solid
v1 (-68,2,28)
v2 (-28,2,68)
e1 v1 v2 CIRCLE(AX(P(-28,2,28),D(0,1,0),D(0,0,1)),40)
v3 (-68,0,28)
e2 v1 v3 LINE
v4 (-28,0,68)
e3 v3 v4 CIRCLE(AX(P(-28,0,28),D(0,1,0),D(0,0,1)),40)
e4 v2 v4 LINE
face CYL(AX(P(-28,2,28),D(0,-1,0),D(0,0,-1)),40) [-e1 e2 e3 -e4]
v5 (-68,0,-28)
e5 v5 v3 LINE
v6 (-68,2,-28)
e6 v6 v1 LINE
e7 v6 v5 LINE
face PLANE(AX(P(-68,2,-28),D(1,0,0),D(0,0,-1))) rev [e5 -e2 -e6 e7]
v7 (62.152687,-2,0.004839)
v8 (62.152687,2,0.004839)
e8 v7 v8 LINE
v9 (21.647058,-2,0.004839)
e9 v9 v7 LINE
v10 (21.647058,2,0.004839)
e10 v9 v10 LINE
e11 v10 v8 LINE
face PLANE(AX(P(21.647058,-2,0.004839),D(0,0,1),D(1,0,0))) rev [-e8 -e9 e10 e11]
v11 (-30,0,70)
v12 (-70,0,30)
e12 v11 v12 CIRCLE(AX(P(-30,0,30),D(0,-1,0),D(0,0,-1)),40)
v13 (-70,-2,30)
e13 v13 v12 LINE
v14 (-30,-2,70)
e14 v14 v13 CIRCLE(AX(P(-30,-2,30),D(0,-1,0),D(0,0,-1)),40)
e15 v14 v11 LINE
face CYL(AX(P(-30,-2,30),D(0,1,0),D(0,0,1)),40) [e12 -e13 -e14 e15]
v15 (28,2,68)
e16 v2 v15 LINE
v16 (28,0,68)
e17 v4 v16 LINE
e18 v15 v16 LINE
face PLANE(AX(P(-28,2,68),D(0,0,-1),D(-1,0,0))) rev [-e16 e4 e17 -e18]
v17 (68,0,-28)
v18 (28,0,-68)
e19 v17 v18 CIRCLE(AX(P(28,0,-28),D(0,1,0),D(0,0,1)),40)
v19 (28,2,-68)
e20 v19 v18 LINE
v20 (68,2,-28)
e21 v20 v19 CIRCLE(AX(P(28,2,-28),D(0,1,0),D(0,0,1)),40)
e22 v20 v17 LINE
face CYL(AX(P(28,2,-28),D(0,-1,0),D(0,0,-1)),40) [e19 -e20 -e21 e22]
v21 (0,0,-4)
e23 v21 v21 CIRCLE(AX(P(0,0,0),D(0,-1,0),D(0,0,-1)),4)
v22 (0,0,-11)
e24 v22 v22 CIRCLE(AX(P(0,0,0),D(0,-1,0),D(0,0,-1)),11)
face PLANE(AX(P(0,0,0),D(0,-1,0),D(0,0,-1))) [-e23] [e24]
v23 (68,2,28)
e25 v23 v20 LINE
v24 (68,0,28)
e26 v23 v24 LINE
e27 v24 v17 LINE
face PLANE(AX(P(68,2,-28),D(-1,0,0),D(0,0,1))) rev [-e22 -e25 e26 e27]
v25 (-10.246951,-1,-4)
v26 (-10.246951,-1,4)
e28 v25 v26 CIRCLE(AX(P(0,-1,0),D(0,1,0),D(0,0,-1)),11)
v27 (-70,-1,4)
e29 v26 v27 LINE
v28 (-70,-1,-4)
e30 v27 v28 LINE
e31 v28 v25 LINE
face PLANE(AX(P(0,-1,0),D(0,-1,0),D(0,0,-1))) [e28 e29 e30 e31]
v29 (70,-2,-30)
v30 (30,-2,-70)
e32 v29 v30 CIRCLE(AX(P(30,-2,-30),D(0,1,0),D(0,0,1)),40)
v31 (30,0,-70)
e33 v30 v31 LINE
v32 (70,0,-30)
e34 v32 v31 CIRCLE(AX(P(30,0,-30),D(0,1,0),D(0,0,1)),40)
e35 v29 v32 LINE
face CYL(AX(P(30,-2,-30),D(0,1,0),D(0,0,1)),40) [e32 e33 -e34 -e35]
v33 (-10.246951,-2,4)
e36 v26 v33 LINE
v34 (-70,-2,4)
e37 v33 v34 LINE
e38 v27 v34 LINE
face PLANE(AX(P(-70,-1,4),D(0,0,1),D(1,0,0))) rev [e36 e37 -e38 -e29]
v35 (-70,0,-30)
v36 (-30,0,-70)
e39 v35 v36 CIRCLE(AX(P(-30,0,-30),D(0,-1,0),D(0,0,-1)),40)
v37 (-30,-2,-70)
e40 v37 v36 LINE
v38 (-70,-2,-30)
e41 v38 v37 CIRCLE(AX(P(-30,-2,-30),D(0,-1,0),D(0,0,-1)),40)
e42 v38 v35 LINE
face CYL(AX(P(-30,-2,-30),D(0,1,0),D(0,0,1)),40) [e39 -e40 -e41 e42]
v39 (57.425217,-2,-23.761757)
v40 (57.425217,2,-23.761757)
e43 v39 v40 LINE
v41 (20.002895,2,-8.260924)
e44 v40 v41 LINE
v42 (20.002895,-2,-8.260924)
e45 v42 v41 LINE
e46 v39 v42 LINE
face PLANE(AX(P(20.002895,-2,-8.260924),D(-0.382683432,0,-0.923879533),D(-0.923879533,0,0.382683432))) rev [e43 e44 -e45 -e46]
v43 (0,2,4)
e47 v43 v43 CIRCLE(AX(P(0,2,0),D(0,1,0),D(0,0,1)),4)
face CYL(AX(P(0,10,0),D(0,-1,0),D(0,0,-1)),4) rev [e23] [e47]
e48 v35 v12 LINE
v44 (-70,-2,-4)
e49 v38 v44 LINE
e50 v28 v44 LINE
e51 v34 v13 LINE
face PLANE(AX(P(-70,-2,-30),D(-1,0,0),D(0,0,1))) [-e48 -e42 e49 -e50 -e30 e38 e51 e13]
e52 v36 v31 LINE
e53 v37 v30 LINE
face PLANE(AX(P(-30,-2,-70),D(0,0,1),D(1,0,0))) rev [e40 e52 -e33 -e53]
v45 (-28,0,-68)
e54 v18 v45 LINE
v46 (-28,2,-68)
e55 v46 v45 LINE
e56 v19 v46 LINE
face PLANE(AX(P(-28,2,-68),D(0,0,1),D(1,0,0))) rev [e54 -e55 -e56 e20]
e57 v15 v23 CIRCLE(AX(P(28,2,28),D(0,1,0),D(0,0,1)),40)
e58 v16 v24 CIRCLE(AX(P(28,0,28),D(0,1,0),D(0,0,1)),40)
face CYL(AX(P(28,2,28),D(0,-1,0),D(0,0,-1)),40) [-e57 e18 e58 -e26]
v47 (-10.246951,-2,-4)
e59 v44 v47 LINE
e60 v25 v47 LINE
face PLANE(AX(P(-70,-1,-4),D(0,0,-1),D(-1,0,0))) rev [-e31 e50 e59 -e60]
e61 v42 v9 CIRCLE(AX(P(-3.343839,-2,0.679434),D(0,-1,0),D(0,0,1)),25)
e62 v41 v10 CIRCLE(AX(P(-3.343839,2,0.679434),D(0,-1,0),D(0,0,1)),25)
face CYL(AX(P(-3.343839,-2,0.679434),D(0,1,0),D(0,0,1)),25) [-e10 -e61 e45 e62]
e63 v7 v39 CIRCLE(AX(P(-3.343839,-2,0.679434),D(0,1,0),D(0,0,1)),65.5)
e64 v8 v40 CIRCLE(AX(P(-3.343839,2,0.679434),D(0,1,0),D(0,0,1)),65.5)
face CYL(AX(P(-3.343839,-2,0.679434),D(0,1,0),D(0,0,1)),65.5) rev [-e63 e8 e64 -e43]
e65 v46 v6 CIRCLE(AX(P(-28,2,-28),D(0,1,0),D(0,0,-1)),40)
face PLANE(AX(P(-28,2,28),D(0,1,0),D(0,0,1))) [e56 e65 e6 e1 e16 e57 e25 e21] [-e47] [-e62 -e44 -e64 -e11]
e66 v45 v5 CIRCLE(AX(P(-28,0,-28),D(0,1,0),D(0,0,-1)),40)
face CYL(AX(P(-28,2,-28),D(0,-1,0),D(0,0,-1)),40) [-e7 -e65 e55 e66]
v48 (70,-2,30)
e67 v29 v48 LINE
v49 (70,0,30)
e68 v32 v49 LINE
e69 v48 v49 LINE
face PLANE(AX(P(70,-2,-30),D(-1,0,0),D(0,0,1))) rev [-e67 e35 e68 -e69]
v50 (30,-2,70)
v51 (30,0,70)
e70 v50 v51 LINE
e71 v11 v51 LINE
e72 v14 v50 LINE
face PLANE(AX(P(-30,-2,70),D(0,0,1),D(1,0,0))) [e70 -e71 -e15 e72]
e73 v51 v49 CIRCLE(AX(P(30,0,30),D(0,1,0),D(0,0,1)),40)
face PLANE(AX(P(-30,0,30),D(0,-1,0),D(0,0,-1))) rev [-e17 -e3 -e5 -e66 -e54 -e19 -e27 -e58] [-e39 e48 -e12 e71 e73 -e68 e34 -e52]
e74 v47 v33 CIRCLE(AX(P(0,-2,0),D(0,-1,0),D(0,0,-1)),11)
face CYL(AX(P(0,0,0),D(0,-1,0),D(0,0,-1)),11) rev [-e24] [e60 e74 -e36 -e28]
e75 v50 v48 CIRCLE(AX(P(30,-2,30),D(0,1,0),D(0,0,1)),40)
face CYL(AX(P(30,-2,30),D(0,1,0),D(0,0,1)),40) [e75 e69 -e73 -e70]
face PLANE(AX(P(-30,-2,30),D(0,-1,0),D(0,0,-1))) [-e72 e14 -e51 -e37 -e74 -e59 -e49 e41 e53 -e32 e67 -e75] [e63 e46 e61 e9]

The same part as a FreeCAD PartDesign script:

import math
import FreeCAD as App
import Part
import Sketcher

V = App.Vector
Q = App.Units.Quantity

doc = App.newDocument("Part")
params = doc.addObject("Spreadsheet::Sheet", "Params")
for row, (alias, value) in enumerate([
    ("sketch1_radius", "40 mm"),
    ("sketch1_width", "60 mm"),
    ("pad1_length", "2 mm"),
    ("sketch2_radius", "40 mm"),
    ("sketch2_width", "56 mm"),
    ("pad2_length", "2 mm"),
    ("sketch3_diameter", "22 mm"),
    ("pocket1_length", "2 mm"),
    ("sketch5_diameter", "2.8 mm"),
    ("pad3_length", "4 mm"),
    ("sketch6_radius", "25 mm"),
    ("sketch6_radius2", "65.5 mm"),
    ("pocket3_length", "4 mm"),
    ("sketch7_diameter", "2.8 mm"),
    ("pocket4_length", "2 mm"),
    ("sketch8_radius", "11 mm"),
    ("sketch8_height", "8 mm"),
    ("pocket5_length", "1 mm"),
    ("sketch9_diameter", "8 mm"),
    ("pocket6_length", "10 mm"),
], start=1):
    params.set(f"A{row}", alias)
    params.set(f"B{row}", "=" + value)
    params.setAlias(f"B{row}", alias)

body = doc.addObject("PartDesign::Body", "Body")

# Sketch on XZ plane
sketch1 = body.newObject("Sketcher::SketchObject", "Sketch")
sketch1.AttachmentSupport = (doc.getObject("XZ_Plane"), [""])
sketch1.MapMode = "FlatFace"
sketch1.addGeometry([
    Part.LineSegment(V(30, -70, 0), V(-30, -70, 0)),  # 0
    Part.ArcOfCircle(Part.Circle(V(-30, -30, 0), V(0, 0, 1), 40), math.radians(-180), math.radians(-90)),  # 1
    Part.LineSegment(V(-70, -30, 0), V(-70, 30, 0)),  # 2
    Part.ArcOfCircle(Part.Circle(V(-30, 30, 0), V(0, 0, 1), 40), math.radians(90), math.radians(180)),  # 3
    Part.LineSegment(V(-30, 70, 0), V(30, 70, 0)),  # 4
    Part.ArcOfCircle(Part.Circle(V(30, 30, 0), V(0, 0, 1), 40), math.radians(0), math.radians(90)),  # 5
    Part.LineSegment(V(70, 30, 0), V(70, -30, 0)),  # 6
    Part.ArcOfCircle(Part.Circle(V(30, -30, 0), V(0, 0, 1), 40), math.radians(-90), math.radians(0)),  # 7
], False)
sketch1.addConstraint([
    Sketcher.Constraint("Tangent", 0, 2, 1, 2),
    Sketcher.Constraint("Tangent", 1, 1, 2, 1),
    Sketcher.Constraint("Tangent", 2, 2, 3, 2),
    Sketcher.Constraint("Tangent", 3, 1, 4, 1),
    Sketcher.Constraint("Tangent", 4, 2, 5, 2),
    Sketcher.Constraint("Tangent", 5, 1, 6, 1),
    Sketcher.Constraint("Tangent", 6, 2, 7, 2),
    Sketcher.Constraint("Tangent", 7, 1, 0, 1),
    Sketcher.Constraint("Horizontal", 0),
    Sketcher.Constraint("Vertical", 2),
    Sketcher.Constraint("Horizontal", 4),
    Sketcher.Constraint("Vertical", 6),
    Sketcher.Constraint("Equal", 1, 3),
    Sketcher.Constraint("Equal", 3, 5),
    Sketcher.Constraint("Equal", 5, 7),
    Sketcher.Constraint("Symmetric", 1, 3, 5, 3, -1, 1),
    Sketcher.Constraint("Equal", 4, 2),
    Sketcher.Constraint("Radius", 1, Q("40 mm")),
    Sketcher.Constraint("DistanceX", 0, 2, 0, 1, Q("60 mm")),
])
sketch1.setExpression("Constraints[17]", "Params.sketch1_radius")
sketch1.setExpression("Constraints[18]", "Params.sketch1_width")
pad1 = body.newObject("PartDesign::Pad", "Pad")
pad1.Profile = sketch1
pad1.setExpression("Length", "Params.pad1_length")

# Sketch on XZ plane
sketch2 = body.newObject("Sketcher::SketchObject", "Sketch001")
sketch2.AttachmentSupport = (doc.getObject("XZ_Plane"), [""])
sketch2.MapMode = "FlatFace"
sketch2.addGeometry([
    Part.LineSegment(V(28, -68, 0), V(-28, -68, 0)),  # 0
    Part.ArcOfCircle(Part.Circle(V(-28, -28, 0), V(0, 0, 1), 40), math.radians(-180), math.radians(-90)),  # 1
    Part.LineSegment(V(-68, -28, 0), V(-68, 28, 0)),  # 2
    Part.ArcOfCircle(Part.Circle(V(-28, 28, 0), V(0, 0, 1), 40), math.radians(90), math.radians(180)),  # 3
    Part.LineSegment(V(-28, 68, 0), V(28, 68, 0)),  # 4
    Part.ArcOfCircle(Part.Circle(V(28, 28, 0), V(0, 0, 1), 40), math.radians(0), math.radians(90)),  # 5
    Part.LineSegment(V(68, 28, 0), V(68, -28, 0)),  # 6
    Part.ArcOfCircle(Part.Circle(V(28, -28, 0), V(0, 0, 1), 40), math.radians(-90), math.radians(0)),  # 7
], False)
sketch2.addConstraint([
    Sketcher.Constraint("Tangent", 0, 2, 1, 2),
    Sketcher.Constraint("Tangent", 1, 1, 2, 1),
    Sketcher.Constraint("Tangent", 2, 2, 3, 2),
    Sketcher.Constraint("Tangent", 3, 1, 4, 1),
    Sketcher.Constraint("Tangent", 4, 2, 5, 2),
    Sketcher.Constraint("Tangent", 5, 1, 6, 1),
    Sketcher.Constraint("Tangent", 6, 2, 7, 2),
    Sketcher.Constraint("Tangent", 7, 1, 0, 1),
    Sketcher.Constraint("Horizontal", 0),
    Sketcher.Constraint("Vertical", 2),
    Sketcher.Constraint("Horizontal", 4),
    Sketcher.Constraint("Vertical", 6),
    Sketcher.Constraint("Equal", 1, 3),
    Sketcher.Constraint("Equal", 3, 5),
    Sketcher.Constraint("Equal", 5, 7),
    Sketcher.Constraint("Symmetric", 1, 3, 5, 3, -1, 1),
    Sketcher.Constraint("Equal", 4, 2),
    Sketcher.Constraint("Radius", 1, Q("40 mm")),
    Sketcher.Constraint("DistanceX", 0, 2, 0, 1, Q("56 mm")),
])
sketch2.setExpression("Constraints[17]", "Params.sketch2_radius")
sketch2.setExpression("Constraints[18]", "Params.sketch2_width")
pad2 = body.newObject("PartDesign::Pad", "Pad001")
pad2.Profile = sketch2
pad2.setExpression("Length", "Params.pad2_length")
pad2.Reversed = True

# Sketch on XZ plane
sketch3 = body.newObject("Sketcher::SketchObject", "Sketch002")
sketch3.AttachmentSupport = (doc.getObject("XZ_Plane"), [""])
sketch3.MapMode = "FlatFace"
sketch3.AttachmentOffset = App.Placement(V(0, 0, 2), App.Rotation())
sketch3.addGeometry(Part.Circle(V(0, 0, 0), V(0, 0, 1), 11), False)
sketch3.addConstraint([
    Sketcher.Constraint("Coincident", 0, 3, -1, 1),
    Sketcher.Constraint("Diameter", 0, Q("22 mm")),
])
sketch3.setExpression("Constraints[1]", "Params.sketch3_diameter")
pocket1 = body.newObject("PartDesign::Pocket", "Pocket")
pocket1.Profile = sketch3
pocket1.setExpression("Length", "Params.pocket1_length")

# Sketch on XZ plane
sketch4 = body.newObject("Sketcher::SketchObject", "Sketch003")
sketch4.AttachmentSupport = (doc.getObject("XZ_Plane"), [""])
sketch4.MapMode = "FlatFace"
sketch4.addGeometry(Part.Circle(V(0, 0, 0), V(0, 0, 1), 2.6), False)
sketch4.addConstraint([
    Sketcher.Constraint("Coincident", 0, 3, -1, 1),
    Sketcher.Constraint("Diameter", 0, Q("5.207429 mm")),
])
pocket2 = body.newObject("PartDesign::Pocket", "Pocket001")
pocket2.Profile = sketch4
pocket2.Type = "ThroughAll"
pocket2.Midplane = True

# Sketch on XZ plane
sketch5 = body.newObject("Sketcher::SketchObject", "Sketch004")
sketch5.AttachmentSupport = (doc.getObject("XZ_Plane"), [""])
sketch5.MapMode = "FlatFace"
sketch5.addGeometry([
    Part.Circle(V(13, -13, 0), V(0, 0, 1), 1.4),
    Part.Circle(V(13, 13, 0), V(0, 0, 1), 1.4),
    Part.Circle(V(-13, 13, 0), V(0, 0, 1), 1.4),
    Part.Circle(V(-13, -13, 0), V(0, 0, 1), 1.4),
], False)
sketch5.addConstraint([
    Sketcher.Constraint("Equal", 0, 1),
    Sketcher.Constraint("Equal", 1, 2),
    Sketcher.Constraint("Equal", 2, 3),
    Sketcher.Constraint("Symmetric", 0, 3, 2, 3, -1, 1),
    Sketcher.Constraint("Symmetric", 1, 3, 3, 3, -1, 1),
    Sketcher.Constraint("Symmetric", 1, 3, 2, 3, -2),
    Sketcher.Constraint("Diameter", 0, Q("2.8 mm")),
    Sketcher.Constraint("DistanceX", -1, 1, 0, 3, Q("13 mm")),
    Sketcher.Constraint("DistanceY", 0, 3, -1, 1, Q("13 mm")),
])
sketch5.setExpression("Constraints[6]", "Params.sketch5_diameter")
pad3 = body.newObject("PartDesign::Pad", "Pad002")
pad3.Profile = sketch5
pad3.setExpression("Length", "Params.pad3_length")

# Sketch on XZ plane
sketch6 = body.newObject("Sketcher::SketchObject", "Sketch005")
sketch6.AttachmentSupport = (doc.getObject("XZ_Plane"), [""])
sketch6.MapMode = "FlatFace"
sketch6.AttachmentOffset = App.Placement(V(0, 0, -2), App.Rotation())
sketch6.addGeometry([
    Part.LineSegment(V(57.425217, -23.761757, 0), V(20.002895, -8.260924, 0)),
    Part.ArcOfCircle(Part.Circle(V(-3.343839, 0.679434, 0), V(0, 0, 1), 25), math.radians(-20.953755), math.radians(-1.546245)),
    Part.LineSegment(V(21.647058, 0.004839, 0), V(62.152687, 0.004839, 0)),
    Part.ArcOfCircle(Part.Circle(V(-3.343839, 0.679434, 0), V(0, 0, 1), 65.5), math.radians(-21.909892), math.radians(-0.590108)),
], False)
sketch6.addConstraint([
    Sketcher.Constraint("Coincident", 0, 2, 1, 1),
    Sketcher.Constraint("Coincident", 1, 2, 2, 1),
    Sketcher.Constraint("Coincident", 2, 2, 3, 2),
    Sketcher.Constraint("Coincident", 3, 1, 0, 1),
    Sketcher.Constraint("Horizontal", 2),
    Sketcher.Constraint("Coincident", 3, 3, 1, 3),
    Sketcher.Constraint("Radius", 1, Q("25 mm")),
    Sketcher.Constraint("Radius", 3, Q("65.5 mm")),
    Sketcher.Constraint("DistanceX", 2, 1, 2, 2, Q("40.505629 mm")),
    Sketcher.Constraint("Distance", 0, Q("40.505629 mm")),
    Sketcher.Constraint("DistanceX", 1, 3, -1, 1, Q("3.343839 mm")),
    Sketcher.Constraint("DistanceY", -1, 1, 1, 2, Q("0.004839 mm")),
    Sketcher.Constraint("DistanceY", 0, 2, 3, 3, Q("8.940358 mm")),
])
sketch6.setExpression("Constraints[6]", "Params.sketch6_radius")
sketch6.setExpression("Constraints[7]", "Params.sketch6_radius2")
pocket3 = body.newObject("PartDesign::Pocket", "Pocket002")
pocket3.Profile = sketch6
pocket3.setExpression("Length", "Params.pocket3_length")
pocket3.Reversed = True

# Sketch on XZ plane
sketch7 = body.newObject("Sketcher::SketchObject", "Sketch006")
sketch7.AttachmentSupport = (doc.getObject("XZ_Plane"), [""])
sketch7.MapMode = "FlatFace"
sketch7.AttachmentOffset = App.Placement(V(0, 0, 2), App.Rotation())
sketch7.addGeometry([
    Part.Circle(V(13, 13, 0), V(0, 0, 1), 1.4),
    Part.Circle(V(13, -13, 0), V(0, 0, 1), 1.4),
    Part.Circle(V(-13, -13, 0), V(0, 0, 1), 1.4),
    Part.Circle(V(-13, 13, 0), V(0, 0, 1), 1.4),
], False)
sketch7.addConstraint([
    Sketcher.Constraint("Equal", 0, 1),
    Sketcher.Constraint("Equal", 1, 2),
    Sketcher.Constraint("Equal", 2, 3),
    Sketcher.Constraint("Symmetric", 0, 3, 2, 3, -1, 1),
    Sketcher.Constraint("Symmetric", 1, 3, 3, 3, -1, 1),
    Sketcher.Constraint("Symmetric", 1, 3, 2, 3, -2),
    Sketcher.Constraint("Diameter", 0, Q("2.8 mm")),
    Sketcher.Constraint("DistanceX", -1, 1, 0, 3, Q("13 mm")),
    Sketcher.Constraint("DistanceY", -1, 1, 0, 3, Q("13 mm")),
])
sketch7.setExpression("Constraints[6]", "Params.sketch7_diameter")
pocket4 = body.newObject("PartDesign::Pocket", "Pocket003")
pocket4.Profile = sketch7
pocket4.setExpression("Length", "Params.pocket4_length")
pocket4.Reversed = True

# Sketch on XZ plane
sketch8 = body.newObject("Sketcher::SketchObject", "Sketch007")
sketch8.AttachmentSupport = (doc.getObject("XZ_Plane"), [""])
sketch8.MapMode = "FlatFace"
sketch8.AttachmentOffset = App.Placement(V(0, 0, 2), App.Rotation())
sketch8.addGeometry([
    Part.LineSegment(V(-10, 4, 0), V(-70, 4, 0)),
    Part.LineSegment(V(-70, 4, 0), V(-70, -4, 0)),
    Part.LineSegment(V(-70, -4, 0), V(-10, -4, 0)),
    Part.ArcOfCircle(Part.Circle(V(0, 0, 0), V(0, 0, 1), 11), math.radians(159), math.radians(201)),
], False)
sketch8.addConstraint([
    Sketcher.Constraint("Coincident", 0, 2, 1, 1),
    Sketcher.Constraint("Coincident", 1, 2, 2, 1),
    Sketcher.Constraint("Coincident", 2, 2, 3, 2),
    Sketcher.Constraint("Coincident", 3, 1, 0, 1),
    Sketcher.Constraint("Horizontal", 0),
    Sketcher.Constraint("Vertical", 1),
    Sketcher.Constraint("Horizontal", 2),
    Sketcher.Constraint("Coincident", 3, 3, -1, 1),
    Sketcher.Constraint("Vertical", 2, 2, 3, 1),
    Sketcher.Constraint("Radius", 3, Q("11 mm")),
    Sketcher.Constraint("DistanceY", 1, 2, 1, 1, Q("8 mm")),
    Sketcher.Constraint("DistanceX", 0, 2, -1, 1, Q("70 mm")),
])
sketch8.setExpression("Constraints[9]", "Params.sketch8_radius")
sketch8.setExpression("Constraints[10]", "Params.sketch8_height")
pocket5 = body.newObject("PartDesign::Pocket", "Pocket004")
pocket5.Profile = sketch8
pocket5.setExpression("Length", "Params.pocket5_length")

# Sketch on XZ plane
sketch9 = body.newObject("Sketcher::SketchObject", "Sketch008")
sketch9.AttachmentSupport = (doc.getObject("XZ_Plane"), [""])
sketch9.MapMode = "FlatFace"
sketch9.addGeometry(Part.Circle(V(0, 0, 0), V(0, 0, 1), 4), False)
sketch9.addConstraint([
    Sketcher.Constraint("Coincident", 0, 3, -1, 1),
    Sketcher.Constraint("Diameter", 0, Q("8 mm")),
])
sketch9.setExpression("Constraints[1]", "Params.sketch9_diameter")
pocket6 = body.newObject("PartDesign::Pocket", "Pocket005")
pocket6.Profile = sketch9
pocket6.setExpression("Length", "Params.pocket6_length")

doc.recompute()
